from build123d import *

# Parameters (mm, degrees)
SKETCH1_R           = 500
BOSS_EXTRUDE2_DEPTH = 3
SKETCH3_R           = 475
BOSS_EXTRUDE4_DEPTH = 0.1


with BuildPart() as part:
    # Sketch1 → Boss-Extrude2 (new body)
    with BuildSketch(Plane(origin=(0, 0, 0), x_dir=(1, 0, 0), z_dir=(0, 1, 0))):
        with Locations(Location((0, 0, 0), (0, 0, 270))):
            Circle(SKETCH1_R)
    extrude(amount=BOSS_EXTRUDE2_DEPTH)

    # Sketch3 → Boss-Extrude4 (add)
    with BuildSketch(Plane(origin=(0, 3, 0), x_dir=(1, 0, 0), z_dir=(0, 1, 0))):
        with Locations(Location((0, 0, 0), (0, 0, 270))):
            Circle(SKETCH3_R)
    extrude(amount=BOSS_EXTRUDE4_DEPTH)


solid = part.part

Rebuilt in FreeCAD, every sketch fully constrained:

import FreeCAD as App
import Part
import Sketcher
from FreeCAD import Vector

doc = App.newDocument("Part")
body = doc.addObject("PartDesign::Body", "Body")

# Sketch on XZ plane
sketch1 = body.newObject("Sketcher::SketchObject", "Sketch")
sketch1.AttachmentSupport = (doc.getObject("XZ_Plane"), [""])
sketch1.MapMode = "FlatFace"
sketch1.addGeometry(Part.Circle(Vector(0, 0, 0), Vector(0, 0, 1), 500), False)
sketch1.addConstraint(Sketcher.Constraint("Coincident", 0, 3, -1, 1))
sketch1.addConstraint(Sketcher.Constraint("Diameter", 0, 1000.0))
pad1 = body.newObject("PartDesign::Pad", "Pad")
pad1.Profile = sketch1
pad1.Length = 3
pad1.Reversed = True

# Sketch on XZ plane
sketch2 = body.newObject("Sketcher::SketchObject", "Sketch001")
sketch2.AttachmentSupport = (doc.getObject("XZ_Plane"), [""])
sketch2.MapMode = "FlatFace"
sketch2.AttachmentOffset = App.Placement(Vector(0, 0, -3), App.Rotation())
sketch2.addGeometry(Part.Circle(Vector(0, 0, 0), Vector(0, 0, 1), 475), False)
sketch2.addConstraint(Sketcher.Constraint("Coincident", 0, 3, -1, 1))
sketch2.addConstraint(Sketcher.Constraint("Diameter", 0, 950.0))
pad2 = body.newObject("PartDesign::Pad", "Pad001")
pad2.Profile = sketch2
pad2.Length = 0.1
pad2.Reversed = True

doc.recompute()
